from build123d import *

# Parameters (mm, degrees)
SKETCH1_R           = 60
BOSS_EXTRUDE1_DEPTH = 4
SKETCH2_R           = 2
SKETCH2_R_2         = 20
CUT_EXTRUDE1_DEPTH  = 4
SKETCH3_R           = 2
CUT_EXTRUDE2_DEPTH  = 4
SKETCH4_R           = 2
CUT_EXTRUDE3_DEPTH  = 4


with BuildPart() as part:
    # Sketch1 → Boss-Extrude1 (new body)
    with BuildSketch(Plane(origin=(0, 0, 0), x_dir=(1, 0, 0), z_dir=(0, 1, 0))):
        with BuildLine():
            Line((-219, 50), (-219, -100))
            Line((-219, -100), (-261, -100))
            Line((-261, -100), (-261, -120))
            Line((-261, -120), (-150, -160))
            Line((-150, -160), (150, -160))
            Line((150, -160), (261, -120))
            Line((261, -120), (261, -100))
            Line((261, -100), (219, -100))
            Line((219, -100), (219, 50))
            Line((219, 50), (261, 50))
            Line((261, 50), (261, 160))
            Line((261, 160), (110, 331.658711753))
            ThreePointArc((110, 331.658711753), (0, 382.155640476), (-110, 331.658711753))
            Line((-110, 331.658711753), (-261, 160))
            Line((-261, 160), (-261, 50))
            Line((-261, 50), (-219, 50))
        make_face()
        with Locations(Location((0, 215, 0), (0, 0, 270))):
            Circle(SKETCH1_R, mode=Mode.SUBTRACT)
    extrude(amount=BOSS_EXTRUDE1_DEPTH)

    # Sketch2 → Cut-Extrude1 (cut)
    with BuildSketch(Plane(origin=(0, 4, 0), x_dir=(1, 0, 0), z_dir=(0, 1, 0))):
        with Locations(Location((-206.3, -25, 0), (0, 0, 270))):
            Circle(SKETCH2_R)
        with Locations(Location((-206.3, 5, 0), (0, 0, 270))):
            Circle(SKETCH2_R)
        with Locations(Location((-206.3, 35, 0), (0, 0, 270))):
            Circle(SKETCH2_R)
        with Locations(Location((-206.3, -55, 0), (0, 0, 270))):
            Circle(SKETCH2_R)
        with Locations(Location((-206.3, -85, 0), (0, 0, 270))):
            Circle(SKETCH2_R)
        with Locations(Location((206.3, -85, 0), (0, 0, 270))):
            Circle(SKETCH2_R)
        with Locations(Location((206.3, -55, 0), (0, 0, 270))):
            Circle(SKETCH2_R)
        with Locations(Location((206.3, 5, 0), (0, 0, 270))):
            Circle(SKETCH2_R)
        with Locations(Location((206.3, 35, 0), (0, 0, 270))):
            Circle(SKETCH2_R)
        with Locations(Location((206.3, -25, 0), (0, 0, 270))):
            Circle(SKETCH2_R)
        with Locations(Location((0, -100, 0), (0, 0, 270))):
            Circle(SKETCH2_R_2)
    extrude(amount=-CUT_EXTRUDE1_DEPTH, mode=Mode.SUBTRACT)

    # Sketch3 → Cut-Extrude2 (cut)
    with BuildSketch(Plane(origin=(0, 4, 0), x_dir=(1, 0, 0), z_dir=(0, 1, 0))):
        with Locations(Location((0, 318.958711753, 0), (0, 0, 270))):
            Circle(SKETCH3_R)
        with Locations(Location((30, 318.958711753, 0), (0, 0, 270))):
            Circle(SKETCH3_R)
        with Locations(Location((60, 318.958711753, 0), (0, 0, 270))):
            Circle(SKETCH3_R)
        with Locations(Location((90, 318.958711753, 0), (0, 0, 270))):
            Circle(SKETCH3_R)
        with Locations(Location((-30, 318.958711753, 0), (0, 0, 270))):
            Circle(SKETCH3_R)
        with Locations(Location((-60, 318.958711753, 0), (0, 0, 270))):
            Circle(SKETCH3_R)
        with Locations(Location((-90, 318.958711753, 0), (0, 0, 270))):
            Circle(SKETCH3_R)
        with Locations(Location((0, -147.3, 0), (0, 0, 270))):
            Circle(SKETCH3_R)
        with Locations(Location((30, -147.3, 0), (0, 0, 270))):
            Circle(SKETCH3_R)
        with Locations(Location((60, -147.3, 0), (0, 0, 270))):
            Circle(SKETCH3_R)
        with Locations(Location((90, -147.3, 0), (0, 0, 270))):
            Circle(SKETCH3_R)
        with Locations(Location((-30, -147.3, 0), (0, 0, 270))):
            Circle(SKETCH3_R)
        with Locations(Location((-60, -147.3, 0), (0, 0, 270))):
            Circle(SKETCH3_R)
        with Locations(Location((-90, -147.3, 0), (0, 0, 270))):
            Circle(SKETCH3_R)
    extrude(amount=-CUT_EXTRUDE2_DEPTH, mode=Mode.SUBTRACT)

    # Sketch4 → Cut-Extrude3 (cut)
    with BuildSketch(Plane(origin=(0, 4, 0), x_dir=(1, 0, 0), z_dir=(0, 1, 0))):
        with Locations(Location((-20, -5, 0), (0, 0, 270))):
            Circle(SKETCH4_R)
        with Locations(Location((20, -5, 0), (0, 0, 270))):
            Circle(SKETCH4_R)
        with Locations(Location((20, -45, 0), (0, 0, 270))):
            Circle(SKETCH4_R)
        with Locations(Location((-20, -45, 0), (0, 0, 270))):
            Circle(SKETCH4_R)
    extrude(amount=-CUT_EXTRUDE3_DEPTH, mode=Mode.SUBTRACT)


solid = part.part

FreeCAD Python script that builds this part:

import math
import FreeCAD as App
import Part
import Sketcher
Q = App.Units.Quantity

doc = App.newDocument("Part")
body = doc.addObject("PartDesign::Body", "Body")

# Sketch on XZ plane
sketch1 = doc.addObject("Sketcher::SketchObject", "Sketch")
body.addObject(sketch1)
sketch1.AttachmentSupport = (doc.XZ_Plane, [""])
sketch1.MapMode = "FlatFace"
sketch1.addGeometry([
    Part.LineSegment(App.Vector(-219, -50, 0), App.Vector(-219, 100, 0)),  # 0
    Part.LineSegment(App.Vector(-219, 100, 0), App.Vector(-261, 100, 0)),  # 1
    Part.LineSegment(App.Vector(-261, 100, 0), App.Vector(-261, 120, 0)),  # 2
    Part.LineSegment(App.Vector(-261, 120, 0), App.Vector(-150, 160, 0)),  # 3
    Part.LineSegment(App.Vector(-150, 160, 0), App.Vector(150, 160, 0)),  # 4
    Part.LineSegment(App.Vector(150, 160, 0), App.Vector(261, 120, 0)),  # 5
    Part.LineSegment(App.Vector(261, 120, 0), App.Vector(261, 100, 0)),  # 6
    Part.LineSegment(App.Vector(261, 100, 0), App.Vector(219, 100, 0)),  # 7
    Part.LineSegment(App.Vector(219, 100, 0), App.Vector(219, -50, 0)),  # 8
    Part.LineSegment(App.Vector(219, -50, 0), App.Vector(261, -50, 0)),  # 9
    Part.LineSegment(App.Vector(261, -50, 0), App.Vector(261, -160, 0)),  # 10
    Part.LineSegment(App.Vector(261, -160, 0), App.Vector(110, -332, 0)),  # 11
    Part.ArcOfCircle(Part.Circle(App.Vector(0, -237, 0), App.Vector(0, 0, 1), 145), math.radians(-139), math.radians(-41)),  # 12
    Part.LineSegment(App.Vector(-110, -332, 0), App.Vector(-261, -160, 0)),  # 13
    Part.LineSegment(App.Vector(-261, -160, 0), App.Vector(-261, -50, 0)),  # 14
    Part.LineSegment(App.Vector(-261, -50, 0), App.Vector(-219, -50, 0)),  # 15
    Part.Circle(App.Vector(0, -215, 0), App.Vector(0, 0, 1), 60),  # 16
], False)
sketch1.addConstraint([
    Sketcher.Constraint("Coincident", 0, 2, 1, 1),
    Sketcher.Constraint("Coincident", 1, 2, 2, 1),
    Sketcher.Constraint("Coincident", 2, 2, 3, 1),
    Sketcher.Constraint("Coincident", 3, 2, 4, 1),
    Sketcher.Constraint("Coincident", 4, 2, 5, 1),
    Sketcher.Constraint("Coincident", 5, 2, 6, 1),
    Sketcher.Constraint("Coincident", 6, 2, 7, 1),
    Sketcher.Constraint("Coincident", 7, 2, 8, 1),
    Sketcher.Constraint("Coincident", 8, 2, 9, 1),
    Sketcher.Constraint("Coincident", 9, 2, 10, 1),
    Sketcher.Constraint("Coincident", 10, 2, 11, 1),
    Sketcher.Constraint("Coincident", 11, 2, 12, 2),
    Sketcher.Constraint("Coincident", 12, 1, 13, 1),
    Sketcher.Constraint("Coincident", 13, 2, 14, 1),
    Sketcher.Constraint("Coincident", 14, 2, 15, 1),
    Sketcher.Constraint("Coincident", 15, 2, 0, 1),
    Sketcher.Constraint("Vertical", 0),
    Sketcher.Constraint("Horizontal", 1),
    Sketcher.Constraint("Vertical", 2),
    Sketcher.Constraint("Horizontal", 4),
    Sketcher.Constraint("Vertical", 6),
    Sketcher.Constraint("Horizontal", 7),
    Sketcher.Constraint("Vertical", 8),
    Sketcher.Constraint("Horizontal", 9),
    Sketcher.Constraint("Vertical", 10),
    Sketcher.Constraint("Vertical", 14),
    Sketcher.Constraint("Horizontal", 15),
    Sketcher.Constraint("Symmetric", 2, 2, 5, 2, -2),
    Sketcher.Constraint("Symmetric", 0, 2, 7, 2, -2),
    Sketcher.Constraint("Symmetric", 11, 2, 12, 1, -2),
    Sketcher.Constraint("Symmetric", 10, 2, 13, 2, -2),
    Sketcher.Constraint("PointOnObject", 16, 3, -2),
    Sketcher.Constraint("Horizontal", 9, 2, 14, 2),
    Sketcher.Constraint("Vertical", 6, 2, 9, 2),
    Sketcher.Constraint("Equal", 3, 5),
    Sketcher.Constraint("Diameter", 16, Q("120 mm")),
    Sketcher.Constraint("DistanceX", 1, 2, 1, 1, Q("42 mm")),
    Sketcher.Constraint("DistanceX", 4, 1, 4, 2, Q("300 mm")),
    Sketcher.Constraint("DistanceY", 0, 1, 0, 2, Q("150 mm")),
    Sketcher.Constraint("DistanceY", 2, 1, 2, 2, Q("20 mm")),
    Sketcher.Constraint("DistanceY", 10, 2, 10, 1, Q("110 mm")),
    Sketcher.Constraint("DistanceY", 16, 3, -1, 1, Q("215 mm")),
    Sketcher.Constraint("DistanceX", 0, 2, -1, 1, Q("219 mm")),
    Sketcher.Constraint("DistanceY", -1, 1, 0, 2, Q("100 mm")),
    Sketcher.Constraint("DistanceY", -1, 1, 3, 2, Q("160 mm")),
    Sketcher.Constraint("DistanceX", -1, 1, 11, 2, Q("110 mm")),
    Sketcher.Constraint("Radius", 12, Q("145.057731 mm")),
    Sketcher.Constraint("Distance", 11, Q("228.621332 mm")),
])
pad1 = doc.addObject("PartDesign::Pad", "Pad")
body.addObject(pad1)
pad1.Profile = sketch1
pad1.Length = 4
pad1.Reversed = True

# Sketch on XZ plane
sketch2 = doc.addObject("Sketcher::SketchObject", "Sketch001")
body.addObject(sketch2)
sketch2.AttachmentSupport = (doc.XZ_Plane, [""])
sketch2.MapMode = "FlatFace"
sketch2.AttachmentOffset = App.Placement(App.Vector(0, 0, -4), App.Rotation())
sketch2.addGeometry([
    Part.Circle(App.Vector(-206.3, 25, 0), App.Vector(0, 0, 1), 2),  # 0
    Part.Circle(App.Vector(-206.3, -5, 0), App.Vector(0, 0, 1), 2),  # 1
    Part.Circle(App.Vector(-206.3, -35, 0), App.Vector(0, 0, 1), 2),  # 2
    Part.Circle(App.Vector(-206.3, 55, 0), App.Vector(0, 0, 1), 2),  # 3
    Part.Circle(App.Vector(-206.3, 85, 0), App.Vector(0, 0, 1), 2),  # 4
    Part.Circle(App.Vector(206.3, 85, 0), App.Vector(0, 0, 1), 2),  # 5
    Part.Circle(App.Vector(206.3, 55, 0), App.Vector(0, 0, 1), 2),  # 6
    Part.Circle(App.Vector(206.3, -5, 0), App.Vector(0, 0, 1), 2),  # 7
    Part.Circle(App.Vector(206.3, -35, 0), App.Vector(0, 0, 1), 2),  # 8
    Part.Circle(App.Vector(206.3, 25, 0), App.Vector(0, 0, 1), 2),  # 9
    Part.Circle(App.Vector(0, 100, 0), App.Vector(0, 0, 1), 20),  # 10
], False)
sketch2.addConstraint([
    Sketcher.Constraint("Equal", 0, 1),
    Sketcher.Constraint("Equal", 1, 2),
    Sketcher.Constraint("Equal", 2, 3),
    Sketcher.Constraint("Equal", 3, 4),
    Sketcher.Constraint("Equal", 4, 5),
    Sketcher.Constraint("Equal", 5, 6),
    Sketcher.Constraint("Equal", 6, 7),
    Sketcher.Constraint("Equal", 7, 8),
    Sketcher.Constraint("Equal", 8, 9),
    Sketcher.Constraint("Symmetric", 4, 3, 5, 3, -2),
    Sketcher.Constraint("Symmetric", 3, 3, 6, 3, -2),
    Sketcher.Constraint("Symmetric", 1, 3, 7, 3, -2),
    Sketcher.Constraint("Symmetric", 2, 3, 8, 3, -2),
    Sketcher.Constraint("Symmetric", 0, 3, 9, 3, -2),
    Sketcher.Constraint("PointOnObject", 10, 3, -2),
    Sketcher.Constraint("Vertical", 0, 3, 1, 3),
    Sketcher.Constraint("Vertical", 1, 3, 2, 3),
    Sketcher.Constraint("Vertical", 2, 3, 3, 3),
    Sketcher.Constraint("Vertical", 3, 3, 4, 3),
    Sketcher.Constraint("Diameter", 0, Q("4 mm")),
    Sketcher.Constraint("Diameter", 10, Q("40 mm")),
    Sketcher.Constraint("DistanceY", -1, 1, 0, 3, Q("25 mm")),
    Sketcher.Constraint("DistanceY", 1, 3, -1, 1, Q("5 mm")),
    Sketcher.Constraint("DistanceY", 2, 3, -1, 1, Q("35 mm")),
    Sketcher.Constraint("DistanceY", -1, 1, 3, 3, Q("55 mm")),
    Sketcher.Constraint("DistanceY", -1, 1, 4, 3, Q("85 mm")),
    Sketcher.Constraint("DistanceY", -1, 1, 10, 3, Q("100 mm")),
    Sketcher.Constraint("DistanceX", 0, 3, -1, 1, Q("206.3 mm")),
])
pocket1 = doc.addObject("PartDesign::Pocket", "Pocket")
body.addObject(pocket1)
pocket1.Profile = sketch2
pocket1.Length = 4
pocket1.Reversed = True

# Sketch on XZ plane
sketch3 = doc.addObject("Sketcher::SketchObject", "Sketch002")
body.addObject(sketch3)
sketch3.AttachmentSupport = (doc.XZ_Plane, [""])
sketch3.MapMode = "FlatFace"
sketch3.AttachmentOffset = App.Placement(App.Vector(0, 0, -4), App.Rotation())
sketch3.addGeometry([
    Part.Circle(App.Vector(0, -319, 0), App.Vector(0, 0, 1), 2),  # 0
    Part.Circle(App.Vector(30, -319, 0), App.Vector(0, 0, 1), 2),  # 1
    Part.Circle(App.Vector(60, -319, 0), App.Vector(0, 0, 1), 2),  # 2
    Part.Circle(App.Vector(90, -319, 0), App.Vector(0, 0, 1), 2),  # 3
    Part.Circle(App.Vector(-30, -319, 0), App.Vector(0, 0, 1), 2),  # 4
    Part.Circle(App.Vector(-60, -319, 0), App.Vector(0, 0, 1), 2),  # 5
    Part.Circle(App.Vector(-90, -319, 0), App.Vector(0, 0, 1), 2),  # 6
    Part.Circle(App.Vector(0, 147.3, 0), App.Vector(0, 0, 1), 2),  # 7
    Part.Circle(App.Vector(30, 147.3, 0), App.Vector(0, 0, 1), 2),  # 8
    Part.Circle(App.Vector(60, 147.3, 0), App.Vector(0, 0, 1), 2),  # 9
    Part.Circle(App.Vector(90, 147.3, 0), App.Vector(0, 0, 1), 2),  # 10
    Part.Circle(App.Vector(-30, 147.3, 0), App.Vector(0, 0, 1), 2),  # 11
    Part.Circle(App.Vector(-60, 147.3, 0), App.Vector(0, 0, 1), 2),  # 12
    Part.Circle(App.Vector(-90, 147.3, 0), App.Vector(0, 0, 1), 2),  # 13
], False)
sketch3.addConstraint([
    Sketcher.Constraint("Equal", 0, 1),
    Sketcher.Constraint("Equal", 1, 2),
    Sketcher.Constraint("Equal", 2, 3),
    Sketcher.Constraint("Equal", 3, 4),
    Sketcher.Constraint("Equal", 4, 5),
    Sketcher.Constraint("Equal", 5, 6),
    Sketcher.Constraint("Equal", 6, 7),
    Sketcher.Constraint("Equal", 7, 8),
    Sketcher.Constraint("Equal", 8, 9),
    Sketcher.Constraint("Equal", 9, 10),
    Sketcher.Constraint("Equal", 10, 11),
    Sketcher.Constraint("Equal", 11, 12),
    Sketcher.Constraint("Equal", 12, 13),
    Sketcher.Constraint("Symmetric", 1, 3, 4, 3, -2),
    Sketcher.Constraint("Symmetric", 2, 3, 5, 3, -2),
    Sketcher.Constraint("Symmetric", 3, 3, 6, 3, -2),
    Sketcher.Constraint("Symmetric", 8, 3, 11, 3, -2),
    Sketcher.Constraint("Symmetric", 9, 3, 12, 3, -2),
    Sketcher.Constraint("Symmetric", 10, 3, 13, 3, -2),
    Sketcher.Constraint("PointOnObject", 0, 3, -2),
    Sketcher.Constraint("PointOnObject", 7, 3, -2),
    Sketcher.Constraint("Horizontal", 0, 3, 1, 3),
    Sketcher.Constraint("Horizontal", 1, 3, 2, 3),
    Sketcher.Constraint("Horizontal", 2, 3, 3, 3),
    Sketcher.Constraint("Horizontal", 7, 3, 8, 3),
    Sketcher.Constraint("Horizontal", 8, 3, 9, 3),
    Sketcher.Constraint("Horizontal", 9, 3, 10, 3),
    Sketcher.Constraint("Vertical", 1, 3, 8, 3),
    Sketcher.Constraint("Vertical", 2, 3, 9, 3),
    Sketcher.Constraint("Vertical", 3, 3, 10, 3),
    Sketcher.Constraint("Diameter", 0, Q("4 mm")),
    Sketcher.Constraint("DistanceX", -1, 1, 1, 3, Q("30 mm")),
    Sketcher.Constraint("DistanceX", -1, 1, 2, 3, Q("60 mm")),
    Sketcher.Constraint("DistanceX", -1, 1, 3, 3, Q("90 mm")),
    Sketcher.Constraint("DistanceY", -1, 1, 7, 3, Q("147.3 mm")),
    Sketcher.Constraint("DistanceY", 0, 3, -1, 1, Q("318.958712 mm")),
])
pocket2 = doc.addObject("PartDesign::Pocket", "Pocket001")
body.addObject(pocket2)
pocket2.Profile = sketch3
pocket2.Length = 4
pocket2.Reversed = True

# Sketch on XZ plane
sketch4 = doc.addObject("Sketcher::SketchObject", "Sketch003")
body.addObject(sketch4)
sketch4.AttachmentSupport = (doc.XZ_Plane, [""])
sketch4.MapMode = "FlatFace"
sketch4.AttachmentOffset = App.Placement(App.Vector(0, 0, -4), App.Rotation())
sketch4.addGeometry([
    Part.Circle(App.Vector(-20, 5, 0), App.Vector(0, 0, 1), 2),
    Part.Circle(App.Vector(20, 5, 0), App.Vector(0, 0, 1), 2),
    Part.Circle(App.Vector(20, 45, 0), App.Vector(0, 0, 1), 2),
    Part.Circle(App.Vector(-20, 45, 0), App.Vector(0, 0, 1), 2),
], False)
sketch4.addConstraint([
    Sketcher.Constraint("Equal", 0, 1),
    Sketcher.Constraint("Equal", 1, 2),
    Sketcher.Constraint("Equal", 2, 3),
    Sketcher.Constraint("Symmetric", 0, 3, 1, 3, -2),
    Sketcher.Constraint("Symmetric", 2, 3, 3, 3, -2),
    Sketcher.Constraint("Vertical", 1, 3, 2, 3),
    Sketcher.Constraint("Diameter", 0, Q("4 mm")),
    Sketcher.Constraint("DistanceX", 0, 3, -1, 1, Q("20 mm")),
    Sketcher.Constraint("DistanceY", -1, 1, 0, 3, Q("5 mm")),
    Sketcher.Constraint("DistanceY", -1, 1, 2, 3, Q("45 mm")),
])
pocket3 = doc.addObject("PartDesign::Pocket", "Pocket002")
body.addObject(pocket3)
pocket3.Profile = sketch4
pocket3.Length = 4
pocket3.Reversed = True

doc.recompute()
